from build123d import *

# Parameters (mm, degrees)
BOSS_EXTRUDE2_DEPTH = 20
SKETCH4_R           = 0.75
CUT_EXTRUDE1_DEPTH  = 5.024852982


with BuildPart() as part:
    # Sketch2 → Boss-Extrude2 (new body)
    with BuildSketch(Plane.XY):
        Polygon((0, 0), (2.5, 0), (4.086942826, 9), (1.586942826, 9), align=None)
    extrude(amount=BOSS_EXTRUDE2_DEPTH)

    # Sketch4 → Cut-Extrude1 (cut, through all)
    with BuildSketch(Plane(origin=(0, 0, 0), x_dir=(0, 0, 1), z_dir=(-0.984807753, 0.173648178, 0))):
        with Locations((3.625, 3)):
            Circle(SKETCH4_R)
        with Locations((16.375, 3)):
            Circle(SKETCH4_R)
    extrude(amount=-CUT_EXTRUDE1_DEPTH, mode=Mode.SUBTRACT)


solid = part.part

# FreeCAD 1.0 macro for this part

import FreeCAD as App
import Part
import Sketcher
Q = App.Units.Quantity


def add_polygon(sketch, points):
    """Adds a closed chain of lines whose ends are joined by coincident constraints."""
    first, n = sketch.GeometryCount, len(points)
    for a, b in zip(points, points[1:] + points[:1]):
        sketch.addGeometry(Part.LineSegment(App.Vector(*a, 0), App.Vector(*b, 0)), False)
    for i in range(n):
        sketch.addConstraint(Sketcher.Constraint("Coincident", first + i, 2, first + (i + 1) % n, 1))

doc = App.newDocument("Part")
body = doc.addObject("PartDesign::Body", "Body")

sketch1 = body.newObject("Sketcher::SketchObject", "Sketch")
sketch1.AttachmentSupport = (doc.getObject("XY_Plane"), [""])
sketch1.MapMode = "FlatFace"
add_polygon(sketch1, [(0, 0), (2.5, 0), (4.1, 9), (1.6, 9)])
sketch1.addConstraint(Sketcher.Constraint("Horizontal", 0))
sketch1.addConstraint(Sketcher.Constraint("Horizontal", 2))
sketch1.addConstraint(Sketcher.Constraint("Coincident", 3, 2, -1, 1))
sketch1.addConstraint(Sketcher.Constraint("Parallel", 1, 3))
sketch1.addConstraint(Sketcher.Constraint("Angle", 1, Q("80 deg")))
sketch1.addConstraint(Sketcher.Constraint("DistanceX", 0, 1, 0, 2, 2.5))
sketch1.addConstraint(Sketcher.Constraint("DistanceY", -1, 1, 1, 2, 9.0))
pad1 = body.newObject("PartDesign::Pad", "Pad")
pad1.Profile = sketch1
pad1.Length = 20

sketch2 = body.newObject("Sketcher::SketchObject", "Sketch001")
sketch2.Placement = App.Placement(App.Vector(0, 0, 0), App.Rotation(App.Vector(0, 0, 1), App.Vector(0.173648178, 0.984807753, 0), App.Vector(-0.984807753, 0.173648178, 0), "ZXY"))
sketch2.addGeometry(Part.Circle(App.Vector(3.6, 3, 0), App.Vector(0, 0, 1), 0.8), False)
sketch2.addGeometry(Part.Circle(App.Vector(16.4, 3, 0), App.Vector(0, 0, 1), 0.8), False)
sketch2.addConstraint(Sketcher.Constraint("Equal", 0, 1))
sketch2.addConstraint(Sketcher.Constraint("Horizontal", 0, 3, 1, 3))
sketch2.addConstraint(Sketcher.Constraint("Diameter", 0, 1.5))
sketch2.addConstraint(Sketcher.Constraint("DistanceY", -1, 1, 0, 3, 3.0))
sketch2.addConstraint(Sketcher.Constraint("DistanceX", 0, 3, 1, 3, 12.75))
sketch2.addConstraint(Sketcher.Constraint("DistanceX", -1, 1, 0, 3, 3.625))
pocket1 = body.newObject("PartDesign::Pocket", "Pocket")
pocket1.Profile = sketch2
pocket1.Type = "ThroughAll"

doc.recompute()
